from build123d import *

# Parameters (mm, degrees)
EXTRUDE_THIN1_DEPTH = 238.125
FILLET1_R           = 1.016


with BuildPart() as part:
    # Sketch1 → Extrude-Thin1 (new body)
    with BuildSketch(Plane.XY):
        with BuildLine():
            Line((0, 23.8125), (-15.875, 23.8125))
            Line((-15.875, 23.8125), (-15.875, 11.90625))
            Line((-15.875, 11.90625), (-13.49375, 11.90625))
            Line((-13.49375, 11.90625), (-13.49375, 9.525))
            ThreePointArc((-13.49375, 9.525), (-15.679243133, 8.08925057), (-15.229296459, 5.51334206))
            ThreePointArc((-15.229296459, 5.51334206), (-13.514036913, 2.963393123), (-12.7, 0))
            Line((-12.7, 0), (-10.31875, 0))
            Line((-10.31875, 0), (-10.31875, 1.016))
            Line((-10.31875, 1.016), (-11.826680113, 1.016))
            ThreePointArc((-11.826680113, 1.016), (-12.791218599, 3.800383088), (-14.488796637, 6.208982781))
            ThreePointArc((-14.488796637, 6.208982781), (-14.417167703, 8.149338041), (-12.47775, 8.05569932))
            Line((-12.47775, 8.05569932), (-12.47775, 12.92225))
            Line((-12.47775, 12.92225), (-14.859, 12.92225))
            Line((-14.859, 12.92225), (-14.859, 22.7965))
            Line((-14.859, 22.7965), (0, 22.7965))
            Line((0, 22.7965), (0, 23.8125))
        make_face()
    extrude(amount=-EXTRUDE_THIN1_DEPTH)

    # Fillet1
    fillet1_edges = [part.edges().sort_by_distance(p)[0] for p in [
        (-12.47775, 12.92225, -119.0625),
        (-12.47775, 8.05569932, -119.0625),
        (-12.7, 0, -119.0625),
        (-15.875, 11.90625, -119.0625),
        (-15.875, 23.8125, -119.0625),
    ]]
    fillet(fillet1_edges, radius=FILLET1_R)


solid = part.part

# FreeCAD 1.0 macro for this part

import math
import FreeCAD as App
import Part
import Sketcher
from FreeCAD import Vector
Q = App.Units.Quantity


def edges_at(feature, points):
    """Names of the edges that pass closest to the given points."""
    edges = feature.Shape.Edges
    near = lambda p: min(range(len(edges)), key=lambda i: edges[i].distToShape(Part.Vertex(*p))[0])
    return sorted({f"Edge{near(p) + 1}" for p in points})

doc = App.newDocument("Part")
params = doc.addObject("Spreadsheet::Sheet", "Params")
for row, (alias, value) in enumerate([
    ("sketch1_radius", "0.09375 in"),
    ("sketch1_radius2", "0.375 in"),
    ("sketch1_radius3", "0.415 in"),
    ("sketch1_height", "0.04 in"),
    ("sketch1_width", "0.625 in"),
    ("pad1_length", "9.375 in"),
    ("fillet_radius", "0.04 in"),
], start=1):
    params.set(f"A{row}", alias)
    params.set(f"B{row}", "=" + value)
    params.setAlias(f"B{row}", alias)

body = doc.addObject("PartDesign::Body", "Body")

sketch1 = doc.addObject("Sketcher::SketchObject", "Sketch")
body.addObject(sketch1)
sketch1.AttachmentSupport = (doc.XY_Plane, [""])
sketch1.MapMode = "FlatFace"
sketch1.addGeometry(Part.LineSegment(Vector(0, 23.8125, 0), Vector(-15.875, 23.8125, 0)), False)
sketch1.addGeometry(Part.LineSegment(Vector(-15.875, 23.8125, 0), Vector(-15.875, 11.90625, 0)), False)
sketch1.addGeometry(Part.LineSegment(Vector(-15.875, 11.90625, 0), Vector(-13.49375, 11.90625, 0)), False)
sketch1.addGeometry(Part.LineSegment(Vector(-13.49375, 11.90625, 0), Vector(-13.49375, 9.525, 0)), False)
sketch1.addGeometry(Part.ArcOfCircle(Part.Circle(Vector(-13.49375, 7.14375, 0), Vector(0, 0, 1), 2.38125), math.radians(90), math.radians(223.210898)), False)
sketch1.addGeometry(Part.ArcOfCircle(Part.Circle(Vector(-22.171482, -1.00829, 0), Vector(0, 0, 1), 9.525), math.radians(6.076555), math.radians(43.210898)), False)
sketch1.addGeometry(Part.LineSegment(Vector(-12.7, 0, 0), Vector(-10.31875, 0, 0)), False)
sketch1.addGeometry(Part.LineSegment(Vector(-10.31875, 0, 0), Vector(-10.31875, 1.016, 0)), False)
sketch1.addGeometry(Part.LineSegment(Vector(-10.31875, 1.016, 0), Vector(-11.82668, 1.016, 0)), False)
sketch1.addGeometry(Part.ArcOfCircle(Part.Circle(Vector(-22.171482, -1.00829, 0), Vector(0, 0, 1), 10.541), math.radians(11.071838), math.radians(43.210898)), False)
sketch1.addGeometry(Part.ArcOfCircle(Part.Circle(Vector(-13.49375, 7.14375, 0), Vector(0, 0, 1), 1.36525), math.radians(41.910766), math.radians(223.210898)), False)
sketch1.addGeometry(Part.LineSegment(Vector(-12.47775, 8.055699, 0), Vector(-12.47775, 12.92225, 0)), False)
sketch1.addGeometry(Part.LineSegment(Vector(-12.47775, 12.92225, 0), Vector(-14.859, 12.92225, 0)), False)
sketch1.addGeometry(Part.LineSegment(Vector(-14.859, 12.92225, 0), Vector(-14.859, 22.7965, 0)), False)
sketch1.addGeometry(Part.LineSegment(Vector(-14.859, 22.7965, 0), Vector(0, 22.7965, 0)), False)
sketch1.addGeometry(Part.LineSegment(Vector(0, 22.7965, 0), Vector(0, 23.8125, 0)), False)
sketch1.addConstraint(Sketcher.Constraint("Coincident", 0, 2, 1, 1))
sketch1.addConstraint(Sketcher.Constraint("Coincident", 1, 2, 2, 1))
sketch1.addConstraint(Sketcher.Constraint("Coincident", 2, 2, 3, 1))
sketch1.addConstraint(Sketcher.Constraint("Coincident", 3, 2, 4, 1))
sketch1.addConstraint(Sketcher.Constraint("Tangent", 4, 2, 5, 2))
sketch1.addConstraint(Sketcher.Constraint("Coincident", 5, 1, 6, 1))
sketch1.addConstraint(Sketcher.Constraint("Coincident", 6, 2, 7, 1))
sketch1.addConstraint(Sketcher.Constraint("Coincident", 7, 2, 8, 1))
sketch1.addConstraint(Sketcher.Constraint("Coincident", 8, 2, 9, 1))
sketch1.addConstraint(Sketcher.Constraint("Tangent", 9, 2, 10, 2))
sketch1.addConstraint(Sketcher.Constraint("Coincident", 10, 1, 11, 1))
sketch1.addConstraint(Sketcher.Constraint("Coincident", 11, 2, 12, 1))
sketch1.addConstraint(Sketcher.Constraint("Coincident", 12, 2, 13, 1))
sketch1.addConstraint(Sketcher.Constraint("Coincident", 13, 2, 14, 1))
sketch1.addConstraint(Sketcher.Constraint("Coincident", 14, 2, 15, 1))
sketch1.addConstraint(Sketcher.Constraint("Coincident", 15, 2, 0, 1))
sketch1.addConstraint(Sketcher.Constraint("Horizontal", 0))
sketch1.addConstraint(Sketcher.Constraint("Vertical", 1))
sketch1.addConstraint(Sketcher.Constraint("Horizontal", 2))
sketch1.addConstraint(Sketcher.Constraint("Vertical", 3))
sketch1.addConstraint(Sketcher.Constraint("Horizontal", 6))
sketch1.addConstraint(Sketcher.Constraint("Vertical", 7))
sketch1.addConstraint(Sketcher.Constraint("Horizontal", 8))
sketch1.addConstraint(Sketcher.Constraint("Vertical", 11))
sketch1.addConstraint(Sketcher.Constraint("Horizontal", 12))
sketch1.addConstraint(Sketcher.Constraint("Vertical", 13))
sketch1.addConstraint(Sketcher.Constraint("Horizontal", 14))
sketch1.addConstraint(Sketcher.Constraint("Vertical", 15))
sketch1.addConstraint(Sketcher.Constraint("Coincident", 9, 3, 5, 3))
sketch1.addConstraint(Sketcher.Constraint("Coincident", 10, 3, 4, 3))
sketch1.addConstraint(Sketcher.Constraint("PointOnObject", 5, 1, -1))
sketch1.addConstraint(Sketcher.Constraint("PointOnObject", 14, 2, -2))
sketch1.addConstraint(Sketcher.Constraint("Vertical", 10, 3, 2, 2))
sketch1.addConstraint(Sketcher.Constraint("Equal", 2, 6))
sketch1.addConstraint(Sketcher.Constraint("Equal", 6, 12))
sketch1.addConstraint(Sketcher.Constraint("Equal", 12, 3))
sketch1.addConstraint(Sketcher.Constraint("Equal", 7, 15))
sketch1.addConstraint(Sketcher.Constraint("Radius", 4, Q("0.09375 in")))
sketch1.addConstraint(Sketcher.Constraint("Radius", 5, Q("0.375 in")))
sketch1.addConstraint(Sketcher.Constraint("Radius", 9, Q("0.415 in")))
sketch1.addConstraint(Sketcher.Constraint("DistanceY", 7, 1, 7, 2, Q("0.04 in")))
sketch1.addConstraint(Sketcher.Constraint("DistanceX", 5, 1, -1, 1, Q("0.5 in")))
sketch1.addConstraint(Sketcher.Constraint("DistanceX", 0, 2, 0, 1, Q("0.625 in")))
sketch1.addConstraint(Sketcher.Constraint("DistanceX", 2, 1, 2, 2, Q("0.09375 in")))
sketch1.addConstraint(Sketcher.Constraint("DistanceX", 14, 1, 14, 2, Q("0.585 in")))
sketch1.addConstraint(Sketcher.Constraint("DistanceY", 1, 2, 1, 1, Q("0.46875 in")))
sketch1.addConstraint(Sketcher.Constraint("DistanceY", 2, 2, 11, 2, Q("0.04 in")))
sketch1.addConstraint(Sketcher.Constraint("DistanceY", -1, 1, 4, 3, Q("0.28125 in")))
sketch1.setExpression("Constraints[37]", "Params.sketch1_radius")
sketch1.setExpression("Constraints[38]", "Params.sketch1_radius2")
sketch1.setExpression("Constraints[39]", "Params.sketch1_radius3")
sketch1.setExpression("Constraints[40]", "Params.sketch1_height")
sketch1.setExpression("Constraints[42]", "Params.sketch1_width")
pad1 = doc.addObject("PartDesign::Pad", "Pad")
body.addObject(pad1)
pad1.Profile = sketch1
pad1.setExpression("Length", "Params.pad1_length")
pad1.Reversed = True
doc.recompute()

fillet = doc.addObject("PartDesign::Fillet", "Fillet")
body.addObject(fillet)
fillet.Base = (pad1, edges_at(pad1, [
    (-12.478, 12.922, -119.062),
    (-12.478, 8.056, -119.062),
    (-12.7, 0, -119.062),
    (-15.875, 11.906, -119.062),
    (-15.875, 23.812, -119.062),
]))
fillet.setExpression("Radius", "Params.fillet_radius")

doc.recompute()
